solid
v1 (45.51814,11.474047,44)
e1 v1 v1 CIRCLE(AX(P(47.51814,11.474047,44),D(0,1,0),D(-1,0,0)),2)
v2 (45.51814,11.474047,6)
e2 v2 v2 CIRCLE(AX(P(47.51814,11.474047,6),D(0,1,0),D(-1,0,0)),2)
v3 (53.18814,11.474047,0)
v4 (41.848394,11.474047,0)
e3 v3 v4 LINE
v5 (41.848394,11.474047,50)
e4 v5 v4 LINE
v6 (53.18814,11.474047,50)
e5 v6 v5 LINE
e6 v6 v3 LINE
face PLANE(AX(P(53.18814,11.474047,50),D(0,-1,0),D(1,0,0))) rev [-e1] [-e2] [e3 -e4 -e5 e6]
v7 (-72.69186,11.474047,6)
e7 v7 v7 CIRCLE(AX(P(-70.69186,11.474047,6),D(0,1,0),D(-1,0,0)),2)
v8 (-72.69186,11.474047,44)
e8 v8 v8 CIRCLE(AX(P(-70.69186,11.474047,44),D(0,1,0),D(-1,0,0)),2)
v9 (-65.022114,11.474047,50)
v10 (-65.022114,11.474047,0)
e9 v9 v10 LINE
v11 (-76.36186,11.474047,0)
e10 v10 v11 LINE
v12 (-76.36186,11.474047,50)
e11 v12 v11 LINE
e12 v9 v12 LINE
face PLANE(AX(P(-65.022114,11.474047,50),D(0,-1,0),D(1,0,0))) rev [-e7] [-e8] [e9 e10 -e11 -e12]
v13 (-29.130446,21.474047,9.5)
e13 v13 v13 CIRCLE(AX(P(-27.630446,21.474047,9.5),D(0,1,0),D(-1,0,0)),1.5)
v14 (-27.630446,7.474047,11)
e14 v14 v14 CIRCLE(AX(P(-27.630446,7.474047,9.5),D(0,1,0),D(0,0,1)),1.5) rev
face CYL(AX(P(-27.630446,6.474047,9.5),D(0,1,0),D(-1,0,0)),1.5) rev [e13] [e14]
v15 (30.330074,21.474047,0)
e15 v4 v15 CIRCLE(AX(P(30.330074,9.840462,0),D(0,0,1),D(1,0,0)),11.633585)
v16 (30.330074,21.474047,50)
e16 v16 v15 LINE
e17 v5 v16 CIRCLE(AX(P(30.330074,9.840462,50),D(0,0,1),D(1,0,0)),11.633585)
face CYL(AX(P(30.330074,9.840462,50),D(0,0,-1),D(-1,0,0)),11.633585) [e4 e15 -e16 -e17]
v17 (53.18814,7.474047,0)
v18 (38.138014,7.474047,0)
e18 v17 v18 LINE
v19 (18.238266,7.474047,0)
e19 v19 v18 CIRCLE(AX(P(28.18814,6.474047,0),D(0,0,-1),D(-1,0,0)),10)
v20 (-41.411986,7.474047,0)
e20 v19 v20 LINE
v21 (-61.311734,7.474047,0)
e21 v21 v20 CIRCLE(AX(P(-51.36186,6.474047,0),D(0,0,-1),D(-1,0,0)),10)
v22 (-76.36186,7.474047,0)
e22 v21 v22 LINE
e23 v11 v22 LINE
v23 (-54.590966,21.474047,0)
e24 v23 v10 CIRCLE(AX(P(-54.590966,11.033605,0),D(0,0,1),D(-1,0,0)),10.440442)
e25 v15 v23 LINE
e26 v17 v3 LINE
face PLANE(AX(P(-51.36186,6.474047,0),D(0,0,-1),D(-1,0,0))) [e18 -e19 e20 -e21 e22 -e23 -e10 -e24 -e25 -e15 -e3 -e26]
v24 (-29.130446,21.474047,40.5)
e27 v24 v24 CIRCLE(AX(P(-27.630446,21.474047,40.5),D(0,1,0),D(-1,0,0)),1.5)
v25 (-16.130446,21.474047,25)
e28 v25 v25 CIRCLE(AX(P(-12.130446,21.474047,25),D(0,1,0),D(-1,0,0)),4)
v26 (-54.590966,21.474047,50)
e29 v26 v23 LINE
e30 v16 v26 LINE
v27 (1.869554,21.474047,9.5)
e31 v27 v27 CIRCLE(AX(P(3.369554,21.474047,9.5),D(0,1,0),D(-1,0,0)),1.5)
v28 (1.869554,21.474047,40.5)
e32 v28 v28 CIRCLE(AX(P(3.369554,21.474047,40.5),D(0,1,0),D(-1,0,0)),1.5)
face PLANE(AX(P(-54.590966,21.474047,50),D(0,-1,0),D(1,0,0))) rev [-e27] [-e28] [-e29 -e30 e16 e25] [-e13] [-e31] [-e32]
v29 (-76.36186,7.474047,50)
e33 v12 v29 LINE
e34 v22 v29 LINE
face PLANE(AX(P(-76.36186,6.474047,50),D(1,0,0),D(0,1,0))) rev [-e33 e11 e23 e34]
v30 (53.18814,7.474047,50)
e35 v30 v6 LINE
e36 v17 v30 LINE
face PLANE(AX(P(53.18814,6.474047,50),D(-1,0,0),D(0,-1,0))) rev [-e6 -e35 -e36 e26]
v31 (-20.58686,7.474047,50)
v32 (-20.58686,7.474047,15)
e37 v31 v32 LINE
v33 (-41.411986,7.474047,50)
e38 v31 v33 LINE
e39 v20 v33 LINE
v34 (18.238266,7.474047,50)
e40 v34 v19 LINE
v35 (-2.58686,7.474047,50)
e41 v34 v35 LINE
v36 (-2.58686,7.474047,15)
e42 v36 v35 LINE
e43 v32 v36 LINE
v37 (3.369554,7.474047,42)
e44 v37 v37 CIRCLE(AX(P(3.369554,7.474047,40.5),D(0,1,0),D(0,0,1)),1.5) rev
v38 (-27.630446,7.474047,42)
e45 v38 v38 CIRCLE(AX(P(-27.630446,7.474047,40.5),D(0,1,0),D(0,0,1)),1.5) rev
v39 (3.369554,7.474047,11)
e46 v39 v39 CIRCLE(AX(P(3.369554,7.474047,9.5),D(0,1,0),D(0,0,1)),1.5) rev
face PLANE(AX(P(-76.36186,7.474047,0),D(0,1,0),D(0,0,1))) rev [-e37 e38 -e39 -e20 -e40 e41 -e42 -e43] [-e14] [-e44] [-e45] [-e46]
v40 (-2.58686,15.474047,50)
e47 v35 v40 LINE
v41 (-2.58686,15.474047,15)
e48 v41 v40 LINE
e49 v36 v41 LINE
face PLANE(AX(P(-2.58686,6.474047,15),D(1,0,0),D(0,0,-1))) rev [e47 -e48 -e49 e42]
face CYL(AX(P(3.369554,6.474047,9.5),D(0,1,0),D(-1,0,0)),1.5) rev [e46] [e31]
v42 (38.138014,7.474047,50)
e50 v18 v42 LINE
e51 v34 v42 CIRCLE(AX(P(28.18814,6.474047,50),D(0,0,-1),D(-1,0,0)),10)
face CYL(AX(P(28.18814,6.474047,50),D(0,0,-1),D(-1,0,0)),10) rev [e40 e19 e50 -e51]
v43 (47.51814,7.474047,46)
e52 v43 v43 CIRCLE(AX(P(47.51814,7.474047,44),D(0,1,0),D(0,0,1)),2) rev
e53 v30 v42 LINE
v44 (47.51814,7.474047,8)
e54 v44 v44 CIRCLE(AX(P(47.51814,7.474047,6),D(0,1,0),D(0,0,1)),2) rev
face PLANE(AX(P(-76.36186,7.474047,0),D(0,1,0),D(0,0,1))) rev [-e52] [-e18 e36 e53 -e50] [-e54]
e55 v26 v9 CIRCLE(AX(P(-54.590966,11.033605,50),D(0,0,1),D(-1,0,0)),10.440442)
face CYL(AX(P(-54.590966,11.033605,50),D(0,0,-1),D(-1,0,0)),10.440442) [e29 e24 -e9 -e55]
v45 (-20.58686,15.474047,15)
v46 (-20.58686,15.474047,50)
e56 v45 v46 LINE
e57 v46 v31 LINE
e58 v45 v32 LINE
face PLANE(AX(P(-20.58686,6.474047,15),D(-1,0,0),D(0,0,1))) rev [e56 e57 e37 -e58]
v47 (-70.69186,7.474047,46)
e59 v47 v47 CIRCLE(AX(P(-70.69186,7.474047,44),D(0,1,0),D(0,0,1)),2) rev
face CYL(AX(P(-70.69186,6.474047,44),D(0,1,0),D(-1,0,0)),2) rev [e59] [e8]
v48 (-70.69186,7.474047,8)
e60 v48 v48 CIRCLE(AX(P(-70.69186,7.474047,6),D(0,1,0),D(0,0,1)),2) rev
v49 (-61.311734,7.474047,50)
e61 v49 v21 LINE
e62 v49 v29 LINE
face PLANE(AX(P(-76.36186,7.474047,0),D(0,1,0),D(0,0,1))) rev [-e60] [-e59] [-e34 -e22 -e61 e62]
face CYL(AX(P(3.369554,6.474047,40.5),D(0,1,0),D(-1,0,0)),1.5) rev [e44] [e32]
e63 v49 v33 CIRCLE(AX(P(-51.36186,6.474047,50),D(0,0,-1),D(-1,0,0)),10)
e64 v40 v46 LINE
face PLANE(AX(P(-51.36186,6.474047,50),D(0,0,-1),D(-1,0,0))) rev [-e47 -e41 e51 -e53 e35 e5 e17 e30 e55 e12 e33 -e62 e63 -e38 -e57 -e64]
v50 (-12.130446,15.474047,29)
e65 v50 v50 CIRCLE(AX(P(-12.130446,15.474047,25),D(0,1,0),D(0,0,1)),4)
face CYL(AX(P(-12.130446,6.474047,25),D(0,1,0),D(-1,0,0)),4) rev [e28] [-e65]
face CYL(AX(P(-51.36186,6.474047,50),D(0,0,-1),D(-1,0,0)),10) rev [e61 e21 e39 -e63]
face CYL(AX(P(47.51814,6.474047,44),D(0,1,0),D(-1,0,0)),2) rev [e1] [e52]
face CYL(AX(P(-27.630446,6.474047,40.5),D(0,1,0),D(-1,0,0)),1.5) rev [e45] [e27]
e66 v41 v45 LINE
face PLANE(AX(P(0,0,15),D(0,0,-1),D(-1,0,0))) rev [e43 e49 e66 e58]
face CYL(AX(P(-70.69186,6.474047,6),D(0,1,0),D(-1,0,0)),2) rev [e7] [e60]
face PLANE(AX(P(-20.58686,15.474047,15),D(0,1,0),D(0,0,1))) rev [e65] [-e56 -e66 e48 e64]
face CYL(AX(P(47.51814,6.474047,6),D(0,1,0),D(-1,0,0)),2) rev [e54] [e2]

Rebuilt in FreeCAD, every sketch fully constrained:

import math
import FreeCAD as App
import Part
import Sketcher

V = App.Vector


def add_polygon(sketch, points):
    """Adds a closed chain of lines whose ends are joined by coincident constraints."""
    first, n = sketch.GeometryCount, len(points)
    for a, b in zip(points, points[1:] + points[:1]):
        sketch.addGeometry(Part.LineSegment(App.Vector(*a, 0), App.Vector(*b, 0)), False)
    for i in range(n):
        sketch.addConstraint(Sketcher.Constraint("Coincident", first + i, 2, first + (i + 1) % n, 1))

doc = App.newDocument("Part")
body = doc.addObject("PartDesign::Body", "Body")

# Sketch on XY plane
sketch1 = body.newObject("Sketcher::SketchObject", "Sketch")
sketch1.AttachmentSupport = (doc.getObject("XY_Plane"), [""])
sketch1.MapMode = "FlatFace"
sketch1.addGeometry([
    Part.LineSegment(V(-41.36186, 6.474047, 0), V(18.18814, 6.474047, 0)),  # 0
    Part.ArcOfCircle(Part.Circle(V(28.18814, 6.474047, 0), V(0, 0, 1), 10), math.radians(0), math.radians(180)),  # 1
    Part.LineSegment(V(38.18814, 6.474047, 0), V(53.18814, 6.474047, 0)),  # 2
    Part.LineSegment(V(53.18814, 6.474047, 0), V(53.18814, 11.474047, 0)),  # 3
    Part.LineSegment(V(53.18814, 11.474047, 0), V(41.848394, 11.474047, 0)),  # 4
    Part.ArcOfCircle(Part.Circle(V(30.330074, 9.840462, 0), V(0, 0, 1), 11.633585), math.radians(8.072134), math.radians(90)),  # 5
    Part.LineSegment(V(30.330074, 21.474047, 0), V(-54.590966, 21.474047, 0)),  # 6
    Part.ArcOfCircle(Part.Circle(V(-54.590966, 11.033605, 0), V(0, 0, 1), 10.440442), math.radians(90), math.radians(177.582193)),  # 7
    Part.LineSegment(V(-65.022114, 11.474047, 0), V(-76.36186, 11.474047, 0)),  # 8
    Part.LineSegment(V(-76.36186, 11.474047, 0), V(-76.36186, 6.474047, 0)),  # 9
    Part.LineSegment(V(-76.36186, 6.474047, 0), V(-61.36186, 6.474047, 0)),  # 10
    Part.ArcOfCircle(Part.Circle(V(-51.36186, 6.474047, 0), V(0, 0, 1), 10), math.radians(0), math.radians(180)),  # 11
], False)
sketch1.addConstraint([
    Sketcher.Constraint("Coincident", 0, 2, 1, 2),
    Sketcher.Constraint("Coincident", 1, 1, 2, 1),
    Sketcher.Constraint("Coincident", 2, 2, 3, 1),
    Sketcher.Constraint("Coincident", 3, 2, 4, 1),
    Sketcher.Constraint("Coincident", 4, 2, 5, 1),
    Sketcher.Constraint("Tangent", 5, 2, 6, 1),
    Sketcher.Constraint("Tangent", 6, 2, 7, 1),
    Sketcher.Constraint("Coincident", 7, 2, 8, 1),
    Sketcher.Constraint("Coincident", 8, 2, 9, 1),
    Sketcher.Constraint("Coincident", 9, 2, 10, 1),
    Sketcher.Constraint("Coincident", 10, 2, 11, 2),
    Sketcher.Constraint("Coincident", 11, 1, 0, 1),
    Sketcher.Constraint("Horizontal", 0),
    Sketcher.Constraint("Horizontal", 2),
    Sketcher.Constraint("Vertical", 3),
    Sketcher.Constraint("Horizontal", 4),
    Sketcher.Constraint("Horizontal", 6),
    Sketcher.Constraint("Horizontal", 8),
    Sketcher.Constraint("Vertical", 9),
    Sketcher.Constraint("Horizontal", 10),
    Sketcher.Constraint("Equal", 1, 11),
    Sketcher.Constraint("Horizontal", 1, 3, 11, 3),
    Sketcher.Constraint("Horizontal", 11, 3, 0, 2),
    Sketcher.Constraint("Horizontal", 0, 2, 1, 1),
    Sketcher.Constraint("Horizontal", 4, 2, 7, 2),
    Sketcher.Constraint("Horizontal", 2, 2, 9, 2),
    Sketcher.Constraint("Equal", 4, 8),
    Sketcher.Constraint("Equal", 2, 10),
    Sketcher.Constraint("Radius", 1, 10.0),
    Sketcher.Constraint("DistanceX", 2, 1, 2, 2, 15.0),
    Sketcher.Constraint("DistanceY", 3, 1, 3, 2, 5.0),
    Sketcher.Constraint("DistanceY", 1, 3, 5, 2, 15.0),
    Sketcher.Constraint("DistanceX", 0, 1, 0, 2, 59.55),
    Sketcher.Constraint("Radius", 5, 11.633585),
    Sketcher.Constraint("Radius", 7, 10.440442),
    Sketcher.Constraint("DistanceX", 6, 2, 6, 1, 84.92104),
    Sketcher.Constraint("DistanceX", -1, 1, 1, 3, 28.18814),
    Sketcher.Constraint("DistanceY", -1, 1, 1, 3, 6.474047),
])
pad1 = body.newObject("PartDesign::Pad", "Pad")
pad1.Profile = sketch1
pad1.Length = 50

# Sketch on XZ plane
sketch2 = body.newObject("Sketcher::SketchObject", "Sketch001")
sketch2.AttachmentSupport = (doc.getObject("XZ_Plane"), [""])
sketch2.MapMode = "FlatFace"
sketch2.AttachmentOffset = App.Placement(V(0, 0, -11.474047), App.Rotation())
sketch2.addGeometry([
    Part.Circle(V(-70.69186, 6, 0), V(0, 0, 1), 2),
    Part.Circle(V(-70.69186, 44, 0), V(0, 0, 1), 2),
    Part.Circle(V(47.51814, 6, 0), V(0, 0, 1), 2),
    Part.Circle(V(47.51814, 44, 0), V(0, 0, 1), 2),
], False)
sketch2.addConstraint([
    Sketcher.Constraint("Equal", 0, 1),
    Sketcher.Constraint("Equal", 1, 2),
    Sketcher.Constraint("Equal", 2, 3),
    Sketcher.Constraint("Horizontal", 0, 3, 2, 3),
    Sketcher.Constraint("Horizontal", 1, 3, 3, 3),
    Sketcher.Constraint("Vertical", 0, 3, 1, 3),
    Sketcher.Constraint("Vertical", 2, 3, 3, 3),
    Sketcher.Constraint("Diameter", 0, 4.0),
    Sketcher.Constraint("DistanceY", -1, 1, 0, 3, 6.0),
    Sketcher.Constraint("DistanceY", -1, 1, 1, 3, 44.0),
    Sketcher.Constraint("DistanceX", 0, 3, 2, 3, 118.21),
    Sketcher.Constraint("DistanceX", 0, 3, -1, 1, 70.69186),
])
pocket1 = body.newObject("PartDesign::Pocket", "Pocket")
pocket1.Profile = sketch2
pocket1.Type = "ThroughAll"
pocket1.Reversed = True

# Sketch on XY plane
sketch3 = body.newObject("Sketcher::SketchObject", "Sketch002")
sketch3.AttachmentSupport = (doc.getObject("XY_Plane"), [""])
sketch3.MapMode = "FlatFace"
sketch3.AttachmentOffset = App.Placement(V(0, 0, 50), App.Rotation())
add_polygon(sketch3, [(-20.58686, 15.474047), (-20.58686, 6.474047), (-2.58686, 6.474047), (-2.58686, 15.474047)])  # lines 0-3
sketch3.addConstraint([
    Sketcher.Constraint("Vertical", 0),
    Sketcher.Constraint("Horizontal", 1),
    Sketcher.Constraint("Vertical", 2),
    Sketcher.Constraint("Horizontal", 3),
    Sketcher.Constraint("DistanceX", 1, 1, 1, 2, 18.0),
    Sketcher.Constraint("DistanceY", 0, 2, 0, 1, 9.0),
    Sketcher.Constraint("DistanceX", 0, 2, -1, 1, 20.58686),
    Sketcher.Constraint("DistanceY", -1, 1, 0, 2, 6.474047),
])
pocket2 = body.newObject("PartDesign::Pocket", "Pocket001")
pocket2.Profile = sketch3
pocket2.Length = 35

# Sketch on XZ plane
sketch4 = body.newObject("Sketcher::SketchObject", "Sketch003")
sketch4.AttachmentSupport = (doc.getObject("XZ_Plane"), [""])
sketch4.MapMode = "FlatFace"
sketch4.AttachmentOffset = App.Placement(V(0, 0, -21.474047), App.Rotation())
sketch4.addGeometry([
    Part.Circle(V(-12.130446, 25, 0), V(0, 0, 1), 4),  # 0
    Part.Circle(V(-27.630446, 9.5, 0), V(0, 0, 1), 1.5),  # 1
    Part.Circle(V(3.369554, 9.5, 0), V(0, 0, 1), 1.5),  # 2
    Part.Circle(V(3.369554, 40.5, 0), V(0, 0, 1), 1.5),  # 3
    Part.Circle(V(-27.630446, 40.5, 0), V(0, 0, 1), 1.5),  # 4
], False)
sketch4.addConstraint([
    Sketcher.Constraint("Equal", 1, 2),
    Sketcher.Constraint("Equal", 2, 3),
    Sketcher.Constraint("Equal", 3, 4),
    Sketcher.Constraint("Horizontal", 1, 3, 2, 3),
    Sketcher.Constraint("Horizontal", 3, 3, 4, 3),
    Sketcher.Constraint("Vertical", 2, 3, 3, 3),
    Sketcher.Constraint("Vertical", 1, 3, 4, 3),
    Sketcher.Constraint("Diameter", 0, 8.0),
    Sketcher.Constraint("Diameter", 1, 3.0),
    Sketcher.Constraint("DistanceY", -1, 1, 0, 3, 25.0),
    Sketcher.Constraint("DistanceX", 1, 3, 2, 3, 31.0),
    Sketcher.Constraint("DistanceY", 2, 3, 3, 3, 31.0),
    Sketcher.Constraint("DistanceY", -1, 1, 1, 3, 9.5),
    Sketcher.Constraint("DistanceX", 1, 3, 0, 3, 15.5),
    Sketcher.Constraint("DistanceX", 0, 3, -1, 1, 12.130446),
])
pocket3 = body.newObject("PartDesign::Pocket", "Pocket002")
pocket3.Profile = sketch4
pocket3.Type = "ThroughAll"
pocket3.Reversed = True

# Sketch on XY plane
sketch5 = body.newObject("Sketcher::SketchObject", "Sketch004")
sketch5.AttachmentSupport = (doc.getObject("XY_Plane"), [""])
sketch5.MapMode = "FlatFace"
sketch5.AttachmentOffset = App.Placement(V(0, 0, 50), App.Rotation())
add_polygon(sketch5, [(-76.36186, 7.474047), (-76.36186, 6.474047), (53.18814, 6.474047), (53.18814, 7.474047)])  # lines 0-3
sketch5.addConstraint([
    Sketcher.Constraint("Vertical", 0),
    Sketcher.Constraint("Horizontal", 1),
    Sketcher.Constraint("Vertical", 2),
    Sketcher.Constraint("Horizontal", 3),
    Sketcher.Constraint("DistanceY", 0, 2, 0, 1, 1.0),
    Sketcher.Constraint("DistanceX", 1, 1, 1, 2, 129.55),
    Sketcher.Constraint("DistanceX", 0, 2, -1, 1, 76.36186),
    Sketcher.Constraint("DistanceY", -1, 1, 0, 2, 6.474047),
])
pocket4 = body.newObject("PartDesign::Pocket", "Pocket003")
pocket4.Profile = sketch5
pocket4.Type = "ThroughAll"

doc.recompute()
